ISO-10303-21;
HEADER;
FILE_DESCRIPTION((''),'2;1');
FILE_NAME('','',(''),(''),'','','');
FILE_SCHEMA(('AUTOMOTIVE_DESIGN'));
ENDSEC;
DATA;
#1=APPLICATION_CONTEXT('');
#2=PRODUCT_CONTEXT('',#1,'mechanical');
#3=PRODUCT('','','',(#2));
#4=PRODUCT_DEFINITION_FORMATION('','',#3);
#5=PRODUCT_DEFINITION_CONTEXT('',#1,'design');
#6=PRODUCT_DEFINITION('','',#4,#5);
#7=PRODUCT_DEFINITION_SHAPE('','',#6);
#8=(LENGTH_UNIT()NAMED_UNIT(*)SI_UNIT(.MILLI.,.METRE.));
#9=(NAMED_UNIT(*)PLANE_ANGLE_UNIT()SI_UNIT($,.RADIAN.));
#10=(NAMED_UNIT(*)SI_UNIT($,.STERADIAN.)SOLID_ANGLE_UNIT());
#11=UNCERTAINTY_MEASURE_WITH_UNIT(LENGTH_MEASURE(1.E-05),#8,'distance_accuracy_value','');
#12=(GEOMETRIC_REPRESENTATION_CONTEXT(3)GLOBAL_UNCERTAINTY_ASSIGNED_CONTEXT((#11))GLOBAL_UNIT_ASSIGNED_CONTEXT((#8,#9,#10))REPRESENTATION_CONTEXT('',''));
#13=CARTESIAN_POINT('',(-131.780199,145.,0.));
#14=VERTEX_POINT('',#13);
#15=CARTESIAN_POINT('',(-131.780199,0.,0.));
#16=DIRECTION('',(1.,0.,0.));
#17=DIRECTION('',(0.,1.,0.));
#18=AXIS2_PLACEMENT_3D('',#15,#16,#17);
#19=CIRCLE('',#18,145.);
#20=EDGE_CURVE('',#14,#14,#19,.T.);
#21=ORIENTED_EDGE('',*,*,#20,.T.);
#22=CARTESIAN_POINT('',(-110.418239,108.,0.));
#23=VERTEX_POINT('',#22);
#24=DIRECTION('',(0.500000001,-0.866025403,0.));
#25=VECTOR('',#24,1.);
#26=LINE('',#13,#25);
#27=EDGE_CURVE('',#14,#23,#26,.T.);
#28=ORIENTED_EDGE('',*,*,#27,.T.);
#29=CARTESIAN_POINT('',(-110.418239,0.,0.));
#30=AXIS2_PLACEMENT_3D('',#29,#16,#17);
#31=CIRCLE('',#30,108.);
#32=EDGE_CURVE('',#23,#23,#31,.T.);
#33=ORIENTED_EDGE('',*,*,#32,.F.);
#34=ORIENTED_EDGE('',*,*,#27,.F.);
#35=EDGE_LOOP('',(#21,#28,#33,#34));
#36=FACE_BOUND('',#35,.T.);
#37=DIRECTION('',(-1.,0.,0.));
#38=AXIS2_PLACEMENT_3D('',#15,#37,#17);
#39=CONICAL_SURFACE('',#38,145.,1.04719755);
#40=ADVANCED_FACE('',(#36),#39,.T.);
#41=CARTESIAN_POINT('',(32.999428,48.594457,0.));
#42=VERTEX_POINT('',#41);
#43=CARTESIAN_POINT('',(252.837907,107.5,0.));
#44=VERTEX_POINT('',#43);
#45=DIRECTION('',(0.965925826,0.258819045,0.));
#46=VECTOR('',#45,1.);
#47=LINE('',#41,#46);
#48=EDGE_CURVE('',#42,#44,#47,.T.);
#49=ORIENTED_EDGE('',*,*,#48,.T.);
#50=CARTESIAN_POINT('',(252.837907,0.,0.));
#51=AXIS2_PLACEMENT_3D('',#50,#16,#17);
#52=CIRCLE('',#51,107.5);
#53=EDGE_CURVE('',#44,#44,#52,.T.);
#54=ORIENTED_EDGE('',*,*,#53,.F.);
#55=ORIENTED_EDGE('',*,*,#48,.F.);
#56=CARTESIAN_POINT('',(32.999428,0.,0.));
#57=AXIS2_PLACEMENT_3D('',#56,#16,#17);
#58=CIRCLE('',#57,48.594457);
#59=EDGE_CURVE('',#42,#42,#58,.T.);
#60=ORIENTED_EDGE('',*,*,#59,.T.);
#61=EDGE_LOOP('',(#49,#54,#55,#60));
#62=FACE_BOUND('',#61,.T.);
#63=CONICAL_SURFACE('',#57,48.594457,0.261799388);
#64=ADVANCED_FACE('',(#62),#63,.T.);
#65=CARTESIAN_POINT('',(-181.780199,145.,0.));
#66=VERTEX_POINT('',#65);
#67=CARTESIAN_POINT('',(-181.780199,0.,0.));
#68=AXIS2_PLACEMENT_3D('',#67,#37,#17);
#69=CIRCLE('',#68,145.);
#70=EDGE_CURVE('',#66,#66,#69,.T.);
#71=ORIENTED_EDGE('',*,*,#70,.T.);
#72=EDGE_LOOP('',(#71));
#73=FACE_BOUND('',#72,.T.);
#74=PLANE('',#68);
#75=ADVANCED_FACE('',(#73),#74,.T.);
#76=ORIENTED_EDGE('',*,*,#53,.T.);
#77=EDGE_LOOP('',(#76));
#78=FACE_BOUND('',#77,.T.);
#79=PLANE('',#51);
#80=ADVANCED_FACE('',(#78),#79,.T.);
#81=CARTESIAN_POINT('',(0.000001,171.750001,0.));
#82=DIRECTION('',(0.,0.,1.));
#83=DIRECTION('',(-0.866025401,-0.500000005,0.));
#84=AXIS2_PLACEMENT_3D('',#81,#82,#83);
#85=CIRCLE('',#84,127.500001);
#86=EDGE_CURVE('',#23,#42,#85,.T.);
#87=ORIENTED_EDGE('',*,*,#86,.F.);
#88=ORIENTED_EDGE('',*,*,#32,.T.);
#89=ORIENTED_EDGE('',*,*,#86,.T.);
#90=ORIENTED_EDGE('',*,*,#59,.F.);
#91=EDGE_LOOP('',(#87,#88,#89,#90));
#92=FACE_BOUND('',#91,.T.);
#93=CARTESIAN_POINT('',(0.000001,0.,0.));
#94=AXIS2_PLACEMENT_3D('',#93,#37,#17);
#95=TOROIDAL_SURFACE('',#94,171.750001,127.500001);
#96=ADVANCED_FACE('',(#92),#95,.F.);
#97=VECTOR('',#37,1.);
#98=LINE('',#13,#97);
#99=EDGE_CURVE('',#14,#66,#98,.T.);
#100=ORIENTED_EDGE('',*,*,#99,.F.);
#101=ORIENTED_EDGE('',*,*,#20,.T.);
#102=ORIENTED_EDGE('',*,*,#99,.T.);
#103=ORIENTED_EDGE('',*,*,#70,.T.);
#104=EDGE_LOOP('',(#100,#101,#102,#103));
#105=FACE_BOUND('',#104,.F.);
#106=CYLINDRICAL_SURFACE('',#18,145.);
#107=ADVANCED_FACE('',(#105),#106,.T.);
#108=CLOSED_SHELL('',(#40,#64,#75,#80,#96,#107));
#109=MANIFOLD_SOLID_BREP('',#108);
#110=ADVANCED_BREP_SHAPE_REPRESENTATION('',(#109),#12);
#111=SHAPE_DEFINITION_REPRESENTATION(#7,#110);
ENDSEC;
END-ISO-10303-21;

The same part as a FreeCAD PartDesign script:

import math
import FreeCAD as App
import Part
import Sketcher

V = App.Vector
Q = App.Units.Quantity

doc = App.newDocument("Part")
params = doc.addObject("Spreadsheet::Sheet", "Params")
for row, (alias, value) in enumerate([
    ("sketch1_radius", "127.500001 mm"),
    ("sketch1_height", "145 mm"),
    ("sketch1_height2", "107.5 mm"),
    ("revolution_angle", "360 deg"),
    ("sketch2_diameter", "290 mm"),
    ("pad1_length", "50 mm"),
], start=1):
    params.set(f"A{row}", alias)
    params.set(f"B{row}", "=" + value)
    params.setAlias(f"B{row}", alias)

body = doc.addObject("PartDesign::Body", "Body")

sketch1 = body.newObject("Sketcher::SketchObject", "Sketch")
sketch1.AttachmentSupport = (doc.getObject("XY_Plane"), [""])
sketch1.MapMode = "FlatFace"
sketch1.addGeometry([
    Part.ArcOfCircle(Part.Circle(V(0, 172, 0), V(0, 0, 1), 128), math.radians(-150), math.radians(-75)),
    Part.LineSegment(V(-110, 108, 0), V(-132, 145, 0)),
    Part.LineSegment(V(-132, 145, 0), V(-132, 0, 0)),
    Part.LineSegment(V(-132, 0, 0), V(253, 0, 0)),
    Part.LineSegment(V(253, 0, 0), V(253, 108, 0)),
    Part.LineSegment(V(253, 108, 0), V(33, 49, 0)),
], False)
sketch1.addConstraint([
    Sketcher.Constraint("Tangent", 0, 1, 1, 1),
    Sketcher.Constraint("Coincident", 1, 2, 2, 1),
    Sketcher.Constraint("Coincident", 2, 2, 3, 1),
    Sketcher.Constraint("Coincident", 3, 2, 4, 1),
    Sketcher.Constraint("Coincident", 4, 2, 5, 1),
    Sketcher.Constraint("Tangent", 5, 2, 0, 2),
    Sketcher.Constraint("Vertical", 2),
    Sketcher.Constraint("Horizontal", 3),
    Sketcher.Constraint("Vertical", 4),
    Sketcher.Constraint("PointOnObject", 0, 3, -2),
    Sketcher.Constraint("PointOnObject", 2, 2, -1),
    Sketcher.Constraint("Radius", 0, 127.500001),
    Sketcher.Constraint("DistanceY", 2, 2, 2, 1, 145.0),
    Sketcher.Constraint("Angle", 1, Q("120 deg")),
    Sketcher.Constraint("Angle", 5, Q("-165 deg")),
    Sketcher.Constraint("DistanceY", 4, 1, 4, 2, 107.5),
    Sketcher.Constraint("DistanceY", -1, 1, 0, 3, 171.750001),
])
sketch1.setExpression("Constraints[11]", "Params.sketch1_radius")
sketch1.setExpression("Constraints[12]", "Params.sketch1_height")
sketch1.setExpression("Constraints[15]", "Params.sketch1_height2")
revolution = body.newObject("PartDesign::Revolution", "Revolution")
revolution.Profile = sketch1
revolution.ReferenceAxis = (sketch1, ["H_Axis"])
revolution.setExpression("Angle", "Params.revolution_angle")

sketch2 = body.newObject("Sketcher::SketchObject", "Sketch001")
sketch2.AttachmentSupport = (doc.getObject("YZ_Plane"), [""])
sketch2.MapMode = "FlatFace"
sketch2.AttachmentOffset = App.Placement(V(0, 0, -131.780199), App.Rotation())
sketch2.addGeometry(Part.Circle(V(0, 0, 0), V(0, 0, 1), 145), False)
sketch2.addConstraint([
    Sketcher.Constraint("Coincident", 0, 3, -1, 1),
    Sketcher.Constraint("Diameter", 0, 290.0),
])
sketch2.setExpression("Constraints[1]", "Params.sketch2_diameter")
pad1 = body.newObject("PartDesign::Pad", "Pad")
pad1.Profile = sketch2
pad1.setExpression("Length", "Params.pad1_length")
pad1.Reversed = True

doc.recompute()
